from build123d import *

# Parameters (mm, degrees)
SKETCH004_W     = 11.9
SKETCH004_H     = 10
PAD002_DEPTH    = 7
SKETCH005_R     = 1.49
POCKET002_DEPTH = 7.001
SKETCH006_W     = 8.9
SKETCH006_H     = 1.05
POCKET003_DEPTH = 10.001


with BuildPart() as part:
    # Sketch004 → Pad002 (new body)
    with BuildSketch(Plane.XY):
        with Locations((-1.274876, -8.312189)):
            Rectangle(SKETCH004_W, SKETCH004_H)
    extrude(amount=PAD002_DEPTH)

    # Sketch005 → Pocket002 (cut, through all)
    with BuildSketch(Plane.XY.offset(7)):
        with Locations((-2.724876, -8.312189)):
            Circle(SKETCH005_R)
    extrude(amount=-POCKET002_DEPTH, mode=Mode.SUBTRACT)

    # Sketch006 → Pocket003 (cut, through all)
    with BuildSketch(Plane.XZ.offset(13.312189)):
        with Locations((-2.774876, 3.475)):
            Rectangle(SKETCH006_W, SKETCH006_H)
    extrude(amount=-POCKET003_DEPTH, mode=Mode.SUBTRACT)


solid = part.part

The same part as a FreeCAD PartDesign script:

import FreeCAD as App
import Part
import Sketcher

V = App.Vector


def add_polygon(sketch, points):
    """Adds a closed chain of lines whose ends are joined by coincident constraints."""
    first, n = sketch.GeometryCount, len(points)
    for a, b in zip(points, points[1:] + points[:1]):
        sketch.addGeometry(Part.LineSegment(App.Vector(*a, 0), App.Vector(*b, 0)), False)
    for i in range(n):
        sketch.addConstraint(Sketcher.Constraint("Coincident", first + i, 2, first + (i + 1) % n, 1))

doc = App.newDocument("Part")
params = doc.addObject("Spreadsheet::Sheet", "Params")
for row, (alias, value) in enumerate([
    ("sketch1_height", "10 mm"),
    ("sketch1_width", "11.9 mm"),
    ("pad1_length", "7 mm"),
    ("sketch2_diameter", "2.98 mm"),
    ("sketch3_width", "8.9 mm"),
    ("sketch3_height", "1.05 mm"),
], start=1):
    params.set(f"A{row}", alias)
    params.set(f"B{row}", "=" + value)
    params.setAlias(f"B{row}", alias)

body = doc.addObject("PartDesign::Body", "Body")

sketch1 = doc.addObject("Sketcher::SketchObject", "Sketch")
body.addObject(sketch1)
sketch1.AttachmentSupport = (doc.XY_Plane, [""])
sketch1.MapMode = "FlatFace"
add_polygon(sketch1, [(-7, -3), (-7, -13), (5, -13), (5, -3)])
sketch1.addConstraint(Sketcher.Constraint("Vertical", 0))
sketch1.addConstraint(Sketcher.Constraint("Horizontal", 1))
sketch1.addConstraint(Sketcher.Constraint("Vertical", 2))
sketch1.addConstraint(Sketcher.Constraint("Horizontal", 3))
sketch1.addConstraint(Sketcher.Constraint("DistanceY", 0, 2, 0, 1, 10.0))
sketch1.addConstraint(Sketcher.Constraint("DistanceX", 1, 1, 1, 2, 11.9))
sketch1.addConstraint(Sketcher.Constraint("DistanceY", 0, 2, -1, 1, 13.312189))
sketch1.addConstraint(Sketcher.Constraint("DistanceX", 0, 2, -1, 1, 7.224876))
sketch1.setExpression("Constraints[8]", "Params.sketch1_height")
sketch1.setExpression("Constraints[9]", "Params.sketch1_width")
pad1 = doc.addObject("PartDesign::Pad", "Pad")
body.addObject(pad1)
pad1.Profile = sketch1
pad1.setExpression("Length", "Params.pad1_length")

sketch2 = doc.addObject("Sketcher::SketchObject", "Sketch001")
body.addObject(sketch2)
sketch2.AttachmentSupport = (doc.XY_Plane, [""])
sketch2.MapMode = "FlatFace"
sketch2.AttachmentOffset = App.Placement(V(0, 0, 7), App.Rotation())
sketch2.addGeometry(Part.Circle(V(-2.7, -8.3, 0), V(0, 0, 1), 1.5), False)
sketch2.addConstraint(Sketcher.Constraint("Diameter", 0, 2.98))
sketch2.addConstraint(Sketcher.Constraint("DistanceY", 0, 3, -1, 1, 8.312189))
sketch2.addConstraint(Sketcher.Constraint("DistanceX", 0, 3, -1, 1, 2.724876))
sketch2.setExpression("Constraints[0]", "Params.sketch2_diameter")
pocket1 = doc.addObject("PartDesign::Pocket", "Pocket")
body.addObject(pocket1)
pocket1.Profile = sketch2
pocket1.Type = "ThroughAll"

sketch3 = doc.addObject("Sketcher::SketchObject", "Sketch002")
body.addObject(sketch3)
sketch3.AttachmentSupport = (doc.XZ_Plane, [""])
sketch3.MapMode = "FlatFace"
sketch3.AttachmentOffset = App.Placement(V(0, 0, 13.312189), App.Rotation())
add_polygon(sketch3, [(-7.2, 4), (-7.2, 3), (1.7, 3), (1.7, 4)])
sketch3.addConstraint(Sketcher.Constraint("Vertical", 0))
sketch3.addConstraint(Sketcher.Constraint("Horizontal", 1))
sketch3.addConstraint(Sketcher.Constraint("Vertical", 2))
sketch3.addConstraint(Sketcher.Constraint("Horizontal", 3))
sketch3.addConstraint(Sketcher.Constraint("DistanceX", 1, 1, 1, 2, 8.9))
sketch3.addConstraint(Sketcher.Constraint("DistanceY", -1, 1, 2, 2, 4.0))
sketch3.addConstraint(Sketcher.Constraint("DistanceY", 0, 2, 0, 1, 1.05))
sketch3.addConstraint(Sketcher.Constraint("DistanceX", 0, 2, -1, 1, 7.224876))
sketch3.setExpression("Constraints[8]", "Params.sketch3_width")
sketch3.setExpression("Constraints[10]", "Params.sketch3_height")
pocket2 = doc.addObject("PartDesign::Pocket", "Pocket001")
body.addObject(pocket2)
pocket2.Profile = sketch3
pocket2.Type = "ThroughAll"

doc.recompute()
